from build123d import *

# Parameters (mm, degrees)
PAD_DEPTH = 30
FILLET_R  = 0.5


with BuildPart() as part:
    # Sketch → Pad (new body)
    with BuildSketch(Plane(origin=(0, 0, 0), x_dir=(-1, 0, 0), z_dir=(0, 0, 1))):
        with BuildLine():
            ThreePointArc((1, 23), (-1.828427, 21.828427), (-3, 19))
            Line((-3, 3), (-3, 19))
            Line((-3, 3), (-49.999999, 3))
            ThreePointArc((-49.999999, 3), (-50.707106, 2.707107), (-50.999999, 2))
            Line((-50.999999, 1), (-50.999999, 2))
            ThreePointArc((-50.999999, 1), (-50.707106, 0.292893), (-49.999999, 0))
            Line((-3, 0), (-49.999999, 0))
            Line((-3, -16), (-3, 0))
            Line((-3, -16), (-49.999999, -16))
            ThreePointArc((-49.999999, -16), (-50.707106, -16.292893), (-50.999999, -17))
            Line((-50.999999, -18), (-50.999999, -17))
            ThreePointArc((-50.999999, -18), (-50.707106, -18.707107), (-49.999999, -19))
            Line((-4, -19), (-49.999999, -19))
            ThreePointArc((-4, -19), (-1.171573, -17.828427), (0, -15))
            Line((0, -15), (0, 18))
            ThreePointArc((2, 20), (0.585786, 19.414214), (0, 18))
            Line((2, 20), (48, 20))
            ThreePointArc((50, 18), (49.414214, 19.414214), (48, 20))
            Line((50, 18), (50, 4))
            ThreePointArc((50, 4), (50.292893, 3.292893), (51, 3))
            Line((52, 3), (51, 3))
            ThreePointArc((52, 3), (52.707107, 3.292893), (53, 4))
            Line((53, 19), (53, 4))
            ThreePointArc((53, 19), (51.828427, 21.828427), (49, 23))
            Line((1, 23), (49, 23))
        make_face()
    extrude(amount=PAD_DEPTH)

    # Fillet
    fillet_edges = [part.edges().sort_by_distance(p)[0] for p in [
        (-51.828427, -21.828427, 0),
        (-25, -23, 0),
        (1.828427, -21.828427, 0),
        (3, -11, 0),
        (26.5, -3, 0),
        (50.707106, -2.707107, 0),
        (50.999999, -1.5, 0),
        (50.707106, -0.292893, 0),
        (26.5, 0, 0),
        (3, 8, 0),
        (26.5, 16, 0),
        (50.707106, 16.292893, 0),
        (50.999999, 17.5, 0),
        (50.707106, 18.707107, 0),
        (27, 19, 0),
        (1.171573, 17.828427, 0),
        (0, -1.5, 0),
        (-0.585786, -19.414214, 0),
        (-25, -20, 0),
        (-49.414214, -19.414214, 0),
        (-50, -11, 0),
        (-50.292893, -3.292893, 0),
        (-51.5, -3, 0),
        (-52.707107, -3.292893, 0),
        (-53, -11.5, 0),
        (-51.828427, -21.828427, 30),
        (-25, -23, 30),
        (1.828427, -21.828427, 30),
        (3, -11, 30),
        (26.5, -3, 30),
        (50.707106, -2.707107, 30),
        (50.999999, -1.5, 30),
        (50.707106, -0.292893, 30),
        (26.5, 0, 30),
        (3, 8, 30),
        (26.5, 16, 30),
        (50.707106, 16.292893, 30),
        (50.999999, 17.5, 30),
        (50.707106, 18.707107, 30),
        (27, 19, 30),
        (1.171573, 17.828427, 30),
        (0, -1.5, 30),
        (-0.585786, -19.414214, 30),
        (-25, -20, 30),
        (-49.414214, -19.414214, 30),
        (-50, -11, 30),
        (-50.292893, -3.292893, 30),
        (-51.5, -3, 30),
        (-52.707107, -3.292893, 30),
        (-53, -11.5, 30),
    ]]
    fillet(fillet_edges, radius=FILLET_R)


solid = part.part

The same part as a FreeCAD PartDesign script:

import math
import FreeCAD as App
import Part
import Sketcher
from FreeCAD import Vector
Q = App.Units.Quantity


def edges_at(feature, points):
    """Names of the edges that pass closest to the given points."""
    edges = feature.Shape.Edges
    near = lambda p: min(range(len(edges)), key=lambda i: edges[i].distToShape(Part.Vertex(*p))[0])
    return sorted({f"Edge{near(p) + 1}" for p in points})

doc = App.newDocument("Part")
body = doc.addObject("PartDesign::Body", "Body")

# Sketch on XY plane
sketch1 = body.newObject("Sketcher::SketchObject", "Sketch")
sketch1.AttachmentSupport = (doc.getObject("XY_Plane"), [""])
sketch1.MapMode = "FlatFace"
sketch1.addGeometry([
    Part.ArcOfCircle(Part.Circle(Vector(-1, -19, 0), Vector(0, 0, 1), 4), math.radians(-90), math.radians(0)),  # 0
    Part.LineSegment(Vector(3, -19, 0), Vector(3, -3, 0)),  # 1
    Part.LineSegment(Vector(3, -3, 0), Vector(50, -3, 0)),  # 2
    Part.ArcOfCircle(Part.Circle(Vector(50, -2, 0), Vector(0, 0, 1), 1), math.radians(-90), math.radians(0)),  # 3
    Part.LineSegment(Vector(51, -2, 0), Vector(51, -1, 0)),  # 4
    Part.ArcOfCircle(Part.Circle(Vector(50, -1, 0), Vector(0, 0, 1), 1), math.radians(0), math.radians(90)),  # 5
    Part.LineSegment(Vector(50, 0, 0), Vector(3, 0, 0)),  # 6
    Part.LineSegment(Vector(3, 0, 0), Vector(3, 16, 0)),  # 7
    Part.LineSegment(Vector(3, 16, 0), Vector(50, 16, 0)),  # 8
    Part.ArcOfCircle(Part.Circle(Vector(50, 17, 0), Vector(0, 0, 1), 1), math.radians(-90), math.radians(0)),  # 9
    Part.LineSegment(Vector(51, 17, 0), Vector(51, 18, 0)),  # 10
    Part.ArcOfCircle(Part.Circle(Vector(50, 18, 0), Vector(0, 0, 1), 1), math.radians(0), math.radians(90)),  # 11
    Part.LineSegment(Vector(50, 19, 0), Vector(4, 19, 0)),  # 12
    Part.ArcOfCircle(Part.Circle(Vector(4, 15, 0), Vector(0, 0, 1), 4), math.radians(90), math.radians(180)),  # 13
    Part.LineSegment(Vector(0, 15, 0), Vector(0, -18, 0)),  # 14
    Part.ArcOfCircle(Part.Circle(Vector(-2, -18, 0), Vector(0, 0, 1), 2), math.radians(-90), math.radians(0)),  # 15
    Part.LineSegment(Vector(-2, -20, 0), Vector(-48, -20, 0)),  # 16
    Part.ArcOfCircle(Part.Circle(Vector(-48, -18, 0), Vector(0, 0, 1), 2), math.radians(180), math.radians(270)),  # 17
    Part.LineSegment(Vector(-50, -18, 0), Vector(-50, -4, 0)),  # 18
    Part.ArcOfCircle(Part.Circle(Vector(-51, -4, 0), Vector(0, 0, 1), 1), math.radians(0), math.radians(90)),  # 19
    Part.LineSegment(Vector(-51, -3, 0), Vector(-52, -3, 0)),  # 20
    Part.ArcOfCircle(Part.Circle(Vector(-52, -4, 0), Vector(0, 0, 1), 1), math.radians(90), math.radians(180)),  # 21
    Part.LineSegment(Vector(-53, -4, 0), Vector(-53, -19, 0)),  # 22
    Part.ArcOfCircle(Part.Circle(Vector(-49, -19, 0), Vector(0, 0, 1), 4), math.radians(-180), math.radians(-90)),  # 23
    Part.LineSegment(Vector(-49, -23, 0), Vector(-1, -23, 0)),  # 24
], False)
sketch1.addConstraint([
    Sketcher.Constraint("Tangent", 0, 2, 1, 1),
    Sketcher.Constraint("Coincident", 1, 2, 2, 1),
    Sketcher.Constraint("Tangent", 2, 2, 3, 1),
    Sketcher.Constraint("Tangent", 3, 2, 4, 1),
    Sketcher.Constraint("Tangent", 4, 2, 5, 1),
    Sketcher.Constraint("Tangent", 5, 2, 6, 1),
    Sketcher.Constraint("Coincident", 6, 2, 7, 1),
    Sketcher.Constraint("Coincident", 7, 2, 8, 1),
    Sketcher.Constraint("Tangent", 8, 2, 9, 1),
    Sketcher.Constraint("Tangent", 9, 2, 10, 1),
    Sketcher.Constraint("Tangent", 10, 2, 11, 1),
    Sketcher.Constraint("Tangent", 11, 2, 12, 1),
    Sketcher.Constraint("Tangent", 12, 2, 13, 1),
    Sketcher.Constraint("Tangent", 13, 2, 14, 1),
    Sketcher.Constraint("Tangent", 14, 2, 15, 2),
    Sketcher.Constraint("Tangent", 15, 1, 16, 1),
    Sketcher.Constraint("Tangent", 16, 2, 17, 2),
    Sketcher.Constraint("Tangent", 17, 1, 18, 1),
    Sketcher.Constraint("Tangent", 18, 2, 19, 1),
    Sketcher.Constraint("Tangent", 19, 2, 20, 1),
    Sketcher.Constraint("Tangent", 20, 2, 21, 1),
    Sketcher.Constraint("Tangent", 21, 2, 22, 1),
    Sketcher.Constraint("Tangent", 22, 2, 23, 1),
    Sketcher.Constraint("Tangent", 23, 2, 24, 1),
    Sketcher.Constraint("Tangent", 24, 2, 0, 1),
    Sketcher.Constraint("Vertical", 1),
    Sketcher.Constraint("Horizontal", 2),
    Sketcher.Constraint("Vertical", 4),
    Sketcher.Constraint("Horizontal", 6),
    Sketcher.Constraint("Vertical", 7),
    Sketcher.Constraint("Horizontal", 8),
    Sketcher.Constraint("Vertical", 10),
    Sketcher.Constraint("Horizontal", 12),
    Sketcher.Constraint("Vertical", 14),
    Sketcher.Constraint("Horizontal", 16),
    Sketcher.Constraint("Vertical", 18),
    Sketcher.Constraint("Horizontal", 20),
    Sketcher.Constraint("Vertical", 22),
    Sketcher.Constraint("Horizontal", 24),
    Sketcher.Constraint("Equal", 3, 5),
    Sketcher.Constraint("Equal", 5, 9),
    Sketcher.Constraint("Equal", 9, 11),
    Sketcher.Constraint("Equal", 0, 13),
    Sketcher.Constraint("Equal", 15, 17),
    Sketcher.Constraint("Equal", 11, 19),
    Sketcher.Constraint("Equal", 19, 21),
    Sketcher.Constraint("Equal", 13, 23),
    Sketcher.Constraint("PointOnObject", 5, 2, -1),
    Sketcher.Constraint("PointOnObject", 13, 2, -2),
    Sketcher.Constraint("Horizontal", 2, 2, 19, 2),
    Sketcher.Constraint("Vertical", 5, 3, 9, 3),
    Sketcher.Constraint("Vertical", 1, 2, 6, 2),
    Sketcher.Constraint("Equal", 12, 16),
    Sketcher.Constraint("Equal", 20, 4),
    Sketcher.Constraint("Equal", 1, 7),
    Sketcher.Constraint("Equal", 4, 10),
    Sketcher.Constraint("Radius", 0, Q("4 mm")),
    Sketcher.Constraint("Radius", 3, Q("0.999999 mm")),
    Sketcher.Constraint("Radius", 15, Q("1.999999 mm")),
    Sketcher.Constraint("DistanceX", 2, 1, 2, 2, Q("46.999999 mm")),
    Sketcher.Constraint("DistanceX", 12, 2, 12, 1, Q("45.999999 mm")),
    Sketcher.Constraint("DistanceX", 20, 2, 20, 1, Q("1 mm")),
    Sketcher.Constraint("DistanceY", 1, 1, 1, 2, Q("16 mm")),
    Sketcher.Constraint("DistanceY", 14, 2, 14, 1, Q("33 mm")),
])
pad1 = body.newObject("PartDesign::Pad", "Pad")
pad1.Profile = sketch1
pad1.Length = 30
doc.recompute()

fillet = body.newObject("PartDesign::Fillet", "Fillet")
fillet.Base = (pad1, edges_at(pad1, [
    (-51.828, -21.828, 0),
    (-25, -23, 0),
    (1.828, -21.828, 0),
    (3, -11, 0),
    (26.5, -3, 0),
    (50.707, -2.707, 0),
    (51, -1.5, 0),
    (50.707, -0.293, 0),
    (26.5, 0, 0),
    (3, 8, 0),
    (26.5, 16, 0),
    (50.707, 16.293, 0),
    (51, 17.5, 0),
    (50.707, 18.707, 0),
    (27, 19, 0),
    (1.172, 17.828, 0),
    (0, -1.5, 0),
    (-0.586, -19.414, 0),
    (-25, -20, 0),
    (-49.414, -19.414, 0),
    (-50, -11, 0),
    (-50.293, -3.293, 0),
    (-51.5, -3, 0),
    (-52.707, -3.293, 0),
    (-53, -11.5, 0),
    (-51.828, -21.828, 30),
    (-25, -23, 30),
    (1.828, -21.828, 30),
    (3, -11, 30),
    (26.5, -3, 30),
    (50.707, -2.707, 30),
    (51, -1.5, 30),
    (50.707, -0.293, 30),
    (26.5, 0, 30),
    (3, 8, 30),
    (26.5, 16, 30),
    (50.707, 16.293, 30),
    (51, 17.5, 30),
    (50.707, 18.707, 30),
    (27, 19, 30),
    (1.172, 17.828, 30),
    (0, -1.5, 30),
    (-0.586, -19.414, 30),
    (-25, -20, 30),
    (-49.414, -19.414, 30),
    (-50, -11, 30),
    (-50.293, -3.293, 30),
    (-51.5, -3, 30),
    (-52.707, -3.293, 30),
    (-53, -11.5, 30),
]))
fillet.Radius = 0.5

doc.recompute()
